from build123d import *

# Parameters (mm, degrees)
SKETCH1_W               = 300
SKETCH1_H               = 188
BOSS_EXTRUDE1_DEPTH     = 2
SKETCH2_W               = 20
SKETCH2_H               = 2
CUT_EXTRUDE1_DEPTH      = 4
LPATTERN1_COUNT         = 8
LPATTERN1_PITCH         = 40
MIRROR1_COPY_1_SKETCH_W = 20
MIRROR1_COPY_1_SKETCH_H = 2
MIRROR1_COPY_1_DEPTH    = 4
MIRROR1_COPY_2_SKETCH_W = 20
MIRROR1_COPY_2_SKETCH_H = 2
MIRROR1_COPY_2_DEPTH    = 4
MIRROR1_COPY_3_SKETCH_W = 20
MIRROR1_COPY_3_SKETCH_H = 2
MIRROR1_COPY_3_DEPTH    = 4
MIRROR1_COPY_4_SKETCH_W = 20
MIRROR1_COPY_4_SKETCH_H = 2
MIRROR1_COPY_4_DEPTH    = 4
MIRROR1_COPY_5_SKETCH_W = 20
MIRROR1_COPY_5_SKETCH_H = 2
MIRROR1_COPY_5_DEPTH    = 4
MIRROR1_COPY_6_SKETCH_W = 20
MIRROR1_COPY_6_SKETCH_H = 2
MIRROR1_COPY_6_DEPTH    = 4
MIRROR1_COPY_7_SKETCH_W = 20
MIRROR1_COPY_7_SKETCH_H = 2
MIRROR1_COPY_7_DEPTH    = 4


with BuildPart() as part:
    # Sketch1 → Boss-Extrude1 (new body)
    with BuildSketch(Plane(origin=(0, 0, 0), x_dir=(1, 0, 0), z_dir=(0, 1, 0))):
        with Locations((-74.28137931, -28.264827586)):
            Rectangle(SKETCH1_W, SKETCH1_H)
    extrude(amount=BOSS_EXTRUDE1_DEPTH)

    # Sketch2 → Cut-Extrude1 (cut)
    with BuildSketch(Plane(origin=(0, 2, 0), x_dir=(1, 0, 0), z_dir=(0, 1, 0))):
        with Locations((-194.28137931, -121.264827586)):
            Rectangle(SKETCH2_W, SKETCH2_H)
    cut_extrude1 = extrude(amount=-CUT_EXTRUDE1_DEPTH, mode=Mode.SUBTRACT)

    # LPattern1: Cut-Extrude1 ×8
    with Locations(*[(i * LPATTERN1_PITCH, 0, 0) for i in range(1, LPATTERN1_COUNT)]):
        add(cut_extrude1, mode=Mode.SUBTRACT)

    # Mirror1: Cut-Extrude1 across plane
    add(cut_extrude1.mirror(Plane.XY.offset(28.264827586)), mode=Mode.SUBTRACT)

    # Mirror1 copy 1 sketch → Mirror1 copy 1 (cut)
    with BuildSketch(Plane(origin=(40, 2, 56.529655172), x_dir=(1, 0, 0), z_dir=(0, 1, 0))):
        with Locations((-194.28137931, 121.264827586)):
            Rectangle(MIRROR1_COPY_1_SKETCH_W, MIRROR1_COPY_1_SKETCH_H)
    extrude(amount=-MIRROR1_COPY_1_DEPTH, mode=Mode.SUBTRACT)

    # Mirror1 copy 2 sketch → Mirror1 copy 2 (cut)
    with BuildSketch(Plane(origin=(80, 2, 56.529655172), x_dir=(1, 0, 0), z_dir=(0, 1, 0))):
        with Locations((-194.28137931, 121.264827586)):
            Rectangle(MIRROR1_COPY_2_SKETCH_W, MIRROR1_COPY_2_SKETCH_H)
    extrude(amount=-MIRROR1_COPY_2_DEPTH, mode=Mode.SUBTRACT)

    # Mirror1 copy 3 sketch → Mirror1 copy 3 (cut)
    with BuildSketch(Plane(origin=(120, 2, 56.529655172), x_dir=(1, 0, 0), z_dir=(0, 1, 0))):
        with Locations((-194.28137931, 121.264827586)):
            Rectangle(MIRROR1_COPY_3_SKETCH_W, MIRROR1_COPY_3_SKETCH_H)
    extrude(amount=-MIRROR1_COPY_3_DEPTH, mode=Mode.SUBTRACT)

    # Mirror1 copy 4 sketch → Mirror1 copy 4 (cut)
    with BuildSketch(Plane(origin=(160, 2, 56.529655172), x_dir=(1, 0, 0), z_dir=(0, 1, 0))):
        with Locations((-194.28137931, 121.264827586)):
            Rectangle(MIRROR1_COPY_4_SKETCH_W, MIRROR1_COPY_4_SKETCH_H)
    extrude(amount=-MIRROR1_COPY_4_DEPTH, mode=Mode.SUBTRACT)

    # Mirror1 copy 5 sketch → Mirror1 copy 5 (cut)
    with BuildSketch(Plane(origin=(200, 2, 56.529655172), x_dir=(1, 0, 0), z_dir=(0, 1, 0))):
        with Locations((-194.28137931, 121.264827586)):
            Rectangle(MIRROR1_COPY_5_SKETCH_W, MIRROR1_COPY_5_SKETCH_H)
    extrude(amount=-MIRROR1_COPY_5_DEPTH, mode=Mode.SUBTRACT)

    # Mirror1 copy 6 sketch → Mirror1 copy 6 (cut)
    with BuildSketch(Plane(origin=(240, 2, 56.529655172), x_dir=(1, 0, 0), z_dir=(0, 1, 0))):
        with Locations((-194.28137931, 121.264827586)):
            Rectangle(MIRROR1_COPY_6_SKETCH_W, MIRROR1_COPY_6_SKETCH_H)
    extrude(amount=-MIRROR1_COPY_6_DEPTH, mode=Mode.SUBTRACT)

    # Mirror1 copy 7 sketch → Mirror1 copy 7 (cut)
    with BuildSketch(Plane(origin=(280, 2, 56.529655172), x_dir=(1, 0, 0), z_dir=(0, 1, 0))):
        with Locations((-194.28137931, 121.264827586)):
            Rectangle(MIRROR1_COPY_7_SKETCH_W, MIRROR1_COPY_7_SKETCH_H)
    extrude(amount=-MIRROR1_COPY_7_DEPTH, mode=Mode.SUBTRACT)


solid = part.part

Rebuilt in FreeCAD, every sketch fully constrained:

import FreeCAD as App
import Part
import Sketcher

V = App.Vector

doc = App.newDocument("Part")
body = doc.addObject("PartDesign::Body", "Body")

sketch1 = body.newObject("Sketcher::SketchObject", "Sketch")
sketch1.AttachmentSupport = (doc.getObject("XZ_Plane"), [""])
sketch1.MapMode = "FlatFace"
sketch1.addGeometry([
    Part.LineSegment(V(-224, -66, 0), V(-224, 122, 0)),
    Part.LineSegment(V(-224, 122, 0), V(76, 122, 0)),
    Part.LineSegment(V(76, 122, 0), V(76, -66, 0)),
    Part.LineSegment(V(76, -66, 0), V(-224, -66, 0)),
], False)
sketch1.addConstraint([
    Sketcher.Constraint("Coincident", 0, 2, 1, 1),
    Sketcher.Constraint("Coincident", 1, 2, 2, 1),
    Sketcher.Constraint("Coincident", 2, 2, 3, 1),
    Sketcher.Constraint("Coincident", 3, 2, 0, 1),
    Sketcher.Constraint("Vertical", 0),
    Sketcher.Constraint("Horizontal", 1),
    Sketcher.Constraint("Vertical", 2),
    Sketcher.Constraint("Horizontal", 3),
    Sketcher.Constraint("DistanceX", 1, 1, 1, 2, 300.0),
    Sketcher.Constraint("DistanceY", 0, 1, 0, 2, 188.0),
    Sketcher.Constraint("DistanceX", 0, 2, -1, 1, 224.281379),
    Sketcher.Constraint("DistanceY", -1, 1, 0, 2, 122.264828),
])
pad1 = body.newObject("PartDesign::Pad", "Pad")
pad1.Profile = sketch1
pad1.Length = 2
pad1.Reversed = True

sketch2 = body.newObject("Sketcher::SketchObject", "Sketch001")
sketch2.AttachmentSupport = (doc.getObject("XZ_Plane"), [""])
sketch2.MapMode = "FlatFace"
sketch2.AttachmentOffset = App.Placement(V(0, 0, -2), App.Rotation())
sketch2.addGeometry([
    Part.LineSegment(V(-204.3, 120.3, 0), V(-204.3, 122.3, 0)),
    Part.LineSegment(V(-204.3, 122.3, 0), V(-184.3, 122.3, 0)),
    Part.LineSegment(V(-184.3, 122.3, 0), V(-184.3, 120.3, 0)),
    Part.LineSegment(V(-184.3, 120.3, 0), V(-204.3, 120.3, 0)),
], False)
sketch2.addConstraint([
    Sketcher.Constraint("Coincident", 0, 2, 1, 1),
    Sketcher.Constraint("Coincident", 1, 2, 2, 1),
    Sketcher.Constraint("Coincident", 2, 2, 3, 1),
    Sketcher.Constraint("Coincident", 3, 2, 0, 1),
    Sketcher.Constraint("Vertical", 0),
    Sketcher.Constraint("Horizontal", 1),
    Sketcher.Constraint("Vertical", 2),
    Sketcher.Constraint("Horizontal", 3),
    Sketcher.Constraint("DistanceX", 1, 1, 1, 2, 20.0),
    Sketcher.Constraint("DistanceY", 0, 1, 0, 2, 2.0),
    Sketcher.Constraint("DistanceX", 0, 2, -1, 1, 204.281379),
    Sketcher.Constraint("DistanceY", -1, 1, 0, 2, 122.264828),
])
pocket1 = body.newObject("PartDesign::Pocket", "Pocket")
pocket1.Profile = sketch2
pocket1.Length = 4
pocket1.Reversed = True
doc.recompute()

linearpattern = body.newObject("PartDesign::LinearPattern", "LinearPattern")
linearpattern.Originals = [pocket1]
linearpattern.Direction = (doc.getObject("X_Axis"), [""])
linearpattern.Mode = "offset"
linearpattern.Offset = 40
linearpattern.Occurrences = 8
body.Tip = linearpattern
doc.recompute()

datumplane = body.newObject("PartDesign::Plane", "DatumPlane")
datumplane.AttachmentSupport = (doc.getObject("XY_Plane"), [""])
datumplane.MapMode = "FlatFace"
datumplane.AttachmentOffset = App.Placement(V(0, 0, 28.264828), App.Rotation())
mirrored = body.newObject("PartDesign::Mirrored", "Mirrored")
mirrored.Originals = [pocket1]
mirrored.MirrorPlane = (datumplane, [""])
body.Tip = mirrored

sketch3 = body.newObject("Sketcher::SketchObject", "Sketch002")
sketch3.AttachmentSupport = (doc.getObject("XZ_Plane"), [""])
sketch3.MapMode = "FlatFace"
sketch3.AttachmentOffset = App.Placement(V(0, 0, -2), App.Rotation())
sketch3.addGeometry([
    Part.LineSegment(V(-164.3, -65.7, 0), V(-164.3, -63.7, 0)),
    Part.LineSegment(V(-164.3, -63.7, 0), V(-144.3, -63.7, 0)),
    Part.LineSegment(V(-144.3, -63.7, 0), V(-144.3, -65.7, 0)),
    Part.LineSegment(V(-144.3, -65.7, 0), V(-164.3, -65.7, 0)),
], False)
sketch3.addConstraint([
    Sketcher.Constraint("Coincident", 0, 2, 1, 1),
    Sketcher.Constraint("Coincident", 1, 2, 2, 1),
    Sketcher.Constraint("Coincident", 2, 2, 3, 1),
    Sketcher.Constraint("Coincident", 3, 2, 0, 1),
    Sketcher.Constraint("Vertical", 0),
    Sketcher.Constraint("Horizontal", 1),
    Sketcher.Constraint("Vertical", 2),
    Sketcher.Constraint("Horizontal", 3),
    Sketcher.Constraint("DistanceX", 1, 1, 1, 2, 20.0),
    Sketcher.Constraint("DistanceY", 0, 1, 0, 2, 2.0),
    Sketcher.Constraint("DistanceX", 0, 2, -1, 1, 164.281379),
    Sketcher.Constraint("DistanceY", 0, 2, -1, 1, 63.735172),
])
pocket2 = body.newObject("PartDesign::Pocket", "Pocket001")
pocket2.Profile = sketch3
pocket2.Length = 4
pocket2.Reversed = True

sketch4 = body.newObject("Sketcher::SketchObject", "Sketch003")
sketch4.AttachmentSupport = (doc.getObject("XZ_Plane"), [""])
sketch4.MapMode = "FlatFace"
sketch4.AttachmentOffset = App.Placement(V(0, 0, -2), App.Rotation())
sketch4.addGeometry([
    Part.LineSegment(V(-124.3, -65.7, 0), V(-124.3, -63.7, 0)),
    Part.LineSegment(V(-124.3, -63.7, 0), V(-104.3, -63.7, 0)),
    Part.LineSegment(V(-104.3, -63.7, 0), V(-104.3, -65.7, 0)),
    Part.LineSegment(V(-104.3, -65.7, 0), V(-124.3, -65.7, 0)),
], False)
sketch4.addConstraint([
    Sketcher.Constraint("Coincident", 0, 2, 1, 1),
    Sketcher.Constraint("Coincident", 1, 2, 2, 1),
    Sketcher.Constraint("Coincident", 2, 2, 3, 1),
    Sketcher.Constraint("Coincident", 3, 2, 0, 1),
    Sketcher.Constraint("Vertical", 0),
    Sketcher.Constraint("Horizontal", 1),
    Sketcher.Constraint("Vertical", 2),
    Sketcher.Constraint("Horizontal", 3),
    Sketcher.Constraint("DistanceX", 1, 1, 1, 2, 20.0),
    Sketcher.Constraint("DistanceY", 0, 1, 0, 2, 2.0),
    Sketcher.Constraint("DistanceX", 0, 2, -1, 1, 124.281379),
    Sketcher.Constraint("DistanceY", 0, 2, -1, 1, 63.735172),
])
pocket3 = body.newObject("PartDesign::Pocket", "Pocket002")
pocket3.Profile = sketch4
pocket3.Length = 4
pocket3.Reversed = True

sketch5 = body.newObject("Sketcher::SketchObject", "Sketch004")
sketch5.AttachmentSupport = (doc.getObject("XZ_Plane"), [""])
sketch5.MapMode = "FlatFace"
sketch5.AttachmentOffset = App.Placement(V(0, 0, -2), App.Rotation())
sketch5.addGeometry([
    Part.LineSegment(V(-84.3, -65.7, 0), V(-84.3, -63.7, 0)),
    Part.LineSegment(V(-84.3, -63.7, 0), V(-64.3, -63.7, 0)),
    Part.LineSegment(V(-64.3, -63.7, 0), V(-64.3, -65.7, 0)),
    Part.LineSegment(V(-64.3, -65.7, 0), V(-84.3, -65.7, 0)),
], False)
sketch5.addConstraint([
    Sketcher.Constraint("Coincident", 0, 2, 1, 1),
    Sketcher.Constraint("Coincident", 1, 2, 2, 1),
    Sketcher.Constraint("Coincident", 2, 2, 3, 1),
    Sketcher.Constraint("Coincident", 3, 2, 0, 1),
    Sketcher.Constraint("Vertical", 0),
    Sketcher.Constraint("Horizontal", 1),
    Sketcher.Constraint("Vertical", 2),
    Sketcher.Constraint("Horizontal", 3),
    Sketcher.Constraint("DistanceX", 1, 1, 1, 2, 20.0),
    Sketcher.Constraint("DistanceY", 0, 1, 0, 2, 2.0),
    Sketcher.Constraint("DistanceX", 0, 2, -1, 1, 84.281379),
    Sketcher.Constraint("DistanceY", 0, 2, -1, 1, 63.735172),
])
pocket4 = body.newObject("PartDesign::Pocket", "Pocket003")
pocket4.Profile = sketch5
pocket4.Length = 4
pocket4.Reversed = True

sketch6 = body.newObject("Sketcher::SketchObject", "Sketch005")
sketch6.AttachmentSupport = (doc.getObject("XZ_Plane"), [""])
sketch6.MapMode = "FlatFace"
sketch6.AttachmentOffset = App.Placement(V(0, 0, -2), App.Rotation())
sketch6.addGeometry([
    Part.LineSegment(V(-44.3, -65.7, 0), V(-44.3, -63.7, 0)),
    Part.LineSegment(V(-44.3, -63.7, 0), V(-24.3, -63.7, 0)),
    Part.LineSegment(V(-24.3, -63.7, 0), V(-24.3, -65.7, 0)),
    Part.LineSegment(V(-24.3, -65.7, 0), V(-44.3, -65.7, 0)),
], False)
sketch6.addConstraint([
    Sketcher.Constraint("Coincident", 0, 2, 1, 1),
    Sketcher.Constraint("Coincident", 1, 2, 2, 1),
    Sketcher.Constraint("Coincident", 2, 2, 3, 1),
    Sketcher.Constraint("Coincident", 3, 2, 0, 1),
    Sketcher.Constraint("Vertical", 0),
    Sketcher.Constraint("Horizontal", 1),
    Sketcher.Constraint("Vertical", 2),
    Sketcher.Constraint("Horizontal", 3),
    Sketcher.Constraint("DistanceX", 1, 1, 1, 2, 20.0),
    Sketcher.Constraint("DistanceY", 0, 1, 0, 2, 2.0),
    Sketcher.Constraint("DistanceX", 0, 2, -1, 1, 44.281379),
    Sketcher.Constraint("DistanceY", 0, 2, -1, 1, 63.735172),
])
pocket5 = body.newObject("PartDesign::Pocket", "Pocket004")
pocket5.Profile = sketch6
pocket5.Length = 4
pocket5.Reversed = True

sketch7 = body.newObject("Sketcher::SketchObject", "Sketch006")
sketch7.AttachmentSupport = (doc.getObject("XZ_Plane"), [""])
sketch7.MapMode = "FlatFace"
sketch7.AttachmentOffset = App.Placement(V(0, 0, -2), App.Rotation())
sketch7.addGeometry([
    Part.LineSegment(V(-4.3, -65.7, 0), V(-4.3, -63.7, 0)),
    Part.LineSegment(V(-4.3, -63.7, 0), V(15.7, -63.7, 0)),
    Part.LineSegment(V(15.7, -63.7, 0), V(15.7, -65.7, 0)),
    Part.LineSegment(V(15.7, -65.7, 0), V(-4.3, -65.7, 0)),
], False)
sketch7.addConstraint([
    Sketcher.Constraint("Coincident", 0, 2, 1, 1),
    Sketcher.Constraint("Coincident", 1, 2, 2, 1),
    Sketcher.Constraint("Coincident", 2, 2, 3, 1),
    Sketcher.Constraint("Coincident", 3, 2, 0, 1),
    Sketcher.Constraint("Vertical", 0),
    Sketcher.Constraint("Horizontal", 1),
    Sketcher.Constraint("Vertical", 2),
    Sketcher.Constraint("Horizontal", 3),
    Sketcher.Constraint("DistanceX", 1, 1, 1, 2, 20.0),
    Sketcher.Constraint("DistanceY", 0, 1, 0, 2, 2.0),
    Sketcher.Constraint("DistanceX", 0, 2, -1, 1, 4.281379),
    Sketcher.Constraint("DistanceY", 0, 2, -1, 1, 63.735172),
])
pocket6 = body.newObject("PartDesign::Pocket", "Pocket005")
pocket6.Profile = sketch7
pocket6.Length = 4
pocket6.Reversed = True

sketch8 = body.newObject("Sketcher::SketchObject", "Sketch007")
sketch8.AttachmentSupport = (doc.getObject("XZ_Plane"), [""])
sketch8.MapMode = "FlatFace"
sketch8.AttachmentOffset = App.Placement(V(0, 0, -2), App.Rotation())
sketch8.addGeometry([
    Part.LineSegment(V(35.7, -65.7, 0), V(35.7, -63.7, 0)),
    Part.LineSegment(V(35.7, -63.7, 0), V(55.7, -63.7, 0)),
    Part.LineSegment(V(55.7, -63.7, 0), V(55.7, -65.7, 0)),
    Part.LineSegment(V(55.7, -65.7, 0), V(35.7, -65.7, 0)),
], False)
sketch8.addConstraint([
    Sketcher.Constraint("Coincident", 0, 2, 1, 1),
    Sketcher.Constraint("Coincident", 1, 2, 2, 1),
    Sketcher.Constraint("Coincident", 2, 2, 3, 1),
    Sketcher.Constraint("Coincident", 3, 2, 0, 1),
    Sketcher.Constraint("Vertical", 0),
    Sketcher.Constraint("Horizontal", 1),
    Sketcher.Constraint("Vertical", 2),
    Sketcher.Constraint("Horizontal", 3),
    Sketcher.Constraint("DistanceX", 1, 1, 1, 2, 20.0),
    Sketcher.Constraint("DistanceY", 0, 1, 0, 2, 2.0),
    Sketcher.Constraint("DistanceX", -1, 1, 0, 2, 35.718621),
    Sketcher.Constraint("DistanceY", 0, 2, -1, 1, 63.735172),
])
pocket7 = body.newObject("PartDesign::Pocket", "Pocket006")
pocket7.Profile = sketch8
pocket7.Length = 4
pocket7.Reversed = True

sketch9 = body.newObject("Sketcher::SketchObject", "Sketch008")
sketch9.AttachmentSupport = (doc.getObject("XZ_Plane"), [""])
sketch9.MapMode = "FlatFace"
sketch9.AttachmentOffset = App.Placement(V(0, 0, -2), App.Rotation())
sketch9.addGeometry([
    Part.LineSegment(V(75.7, -65.7, 0), V(75.7, -63.7, 0)),
    Part.LineSegment(V(75.7, -63.7, 0), V(95.7, -63.7, 0)),
    Part.LineSegment(V(95.7, -63.7, 0), V(95.7, -65.7, 0)),
    Part.LineSegment(V(95.7, -65.7, 0), V(75.7, -65.7, 0)),
], False)
sketch9.addConstraint([
    Sketcher.Constraint("Coincident", 0, 2, 1, 1),
    Sketcher.Constraint("Coincident", 1, 2, 2, 1),
    Sketcher.Constraint("Coincident", 2, 2, 3, 1),
    Sketcher.Constraint("Coincident", 3, 2, 0, 1),
    Sketcher.Constraint("Vertical", 0),
    Sketcher.Constraint("Horizontal", 1),
    Sketcher.Constraint("Vertical", 2),
    Sketcher.Constraint("Horizontal", 3),
    Sketcher.Constraint("DistanceX", 1, 1, 1, 2, 20.0),
    Sketcher.Constraint("DistanceY", 0, 1, 0, 2, 2.0),
    Sketcher.Constraint("DistanceX", -1, 1, 0, 2, 75.718621),
    Sketcher.Constraint("DistanceY", 0, 2, -1, 1, 63.735172),
])
pocket8 = body.newObject("PartDesign::Pocket", "Pocket007")
pocket8.Profile = sketch9
pocket8.Length = 4
pocket8.Reversed = True

doc.recompute()
